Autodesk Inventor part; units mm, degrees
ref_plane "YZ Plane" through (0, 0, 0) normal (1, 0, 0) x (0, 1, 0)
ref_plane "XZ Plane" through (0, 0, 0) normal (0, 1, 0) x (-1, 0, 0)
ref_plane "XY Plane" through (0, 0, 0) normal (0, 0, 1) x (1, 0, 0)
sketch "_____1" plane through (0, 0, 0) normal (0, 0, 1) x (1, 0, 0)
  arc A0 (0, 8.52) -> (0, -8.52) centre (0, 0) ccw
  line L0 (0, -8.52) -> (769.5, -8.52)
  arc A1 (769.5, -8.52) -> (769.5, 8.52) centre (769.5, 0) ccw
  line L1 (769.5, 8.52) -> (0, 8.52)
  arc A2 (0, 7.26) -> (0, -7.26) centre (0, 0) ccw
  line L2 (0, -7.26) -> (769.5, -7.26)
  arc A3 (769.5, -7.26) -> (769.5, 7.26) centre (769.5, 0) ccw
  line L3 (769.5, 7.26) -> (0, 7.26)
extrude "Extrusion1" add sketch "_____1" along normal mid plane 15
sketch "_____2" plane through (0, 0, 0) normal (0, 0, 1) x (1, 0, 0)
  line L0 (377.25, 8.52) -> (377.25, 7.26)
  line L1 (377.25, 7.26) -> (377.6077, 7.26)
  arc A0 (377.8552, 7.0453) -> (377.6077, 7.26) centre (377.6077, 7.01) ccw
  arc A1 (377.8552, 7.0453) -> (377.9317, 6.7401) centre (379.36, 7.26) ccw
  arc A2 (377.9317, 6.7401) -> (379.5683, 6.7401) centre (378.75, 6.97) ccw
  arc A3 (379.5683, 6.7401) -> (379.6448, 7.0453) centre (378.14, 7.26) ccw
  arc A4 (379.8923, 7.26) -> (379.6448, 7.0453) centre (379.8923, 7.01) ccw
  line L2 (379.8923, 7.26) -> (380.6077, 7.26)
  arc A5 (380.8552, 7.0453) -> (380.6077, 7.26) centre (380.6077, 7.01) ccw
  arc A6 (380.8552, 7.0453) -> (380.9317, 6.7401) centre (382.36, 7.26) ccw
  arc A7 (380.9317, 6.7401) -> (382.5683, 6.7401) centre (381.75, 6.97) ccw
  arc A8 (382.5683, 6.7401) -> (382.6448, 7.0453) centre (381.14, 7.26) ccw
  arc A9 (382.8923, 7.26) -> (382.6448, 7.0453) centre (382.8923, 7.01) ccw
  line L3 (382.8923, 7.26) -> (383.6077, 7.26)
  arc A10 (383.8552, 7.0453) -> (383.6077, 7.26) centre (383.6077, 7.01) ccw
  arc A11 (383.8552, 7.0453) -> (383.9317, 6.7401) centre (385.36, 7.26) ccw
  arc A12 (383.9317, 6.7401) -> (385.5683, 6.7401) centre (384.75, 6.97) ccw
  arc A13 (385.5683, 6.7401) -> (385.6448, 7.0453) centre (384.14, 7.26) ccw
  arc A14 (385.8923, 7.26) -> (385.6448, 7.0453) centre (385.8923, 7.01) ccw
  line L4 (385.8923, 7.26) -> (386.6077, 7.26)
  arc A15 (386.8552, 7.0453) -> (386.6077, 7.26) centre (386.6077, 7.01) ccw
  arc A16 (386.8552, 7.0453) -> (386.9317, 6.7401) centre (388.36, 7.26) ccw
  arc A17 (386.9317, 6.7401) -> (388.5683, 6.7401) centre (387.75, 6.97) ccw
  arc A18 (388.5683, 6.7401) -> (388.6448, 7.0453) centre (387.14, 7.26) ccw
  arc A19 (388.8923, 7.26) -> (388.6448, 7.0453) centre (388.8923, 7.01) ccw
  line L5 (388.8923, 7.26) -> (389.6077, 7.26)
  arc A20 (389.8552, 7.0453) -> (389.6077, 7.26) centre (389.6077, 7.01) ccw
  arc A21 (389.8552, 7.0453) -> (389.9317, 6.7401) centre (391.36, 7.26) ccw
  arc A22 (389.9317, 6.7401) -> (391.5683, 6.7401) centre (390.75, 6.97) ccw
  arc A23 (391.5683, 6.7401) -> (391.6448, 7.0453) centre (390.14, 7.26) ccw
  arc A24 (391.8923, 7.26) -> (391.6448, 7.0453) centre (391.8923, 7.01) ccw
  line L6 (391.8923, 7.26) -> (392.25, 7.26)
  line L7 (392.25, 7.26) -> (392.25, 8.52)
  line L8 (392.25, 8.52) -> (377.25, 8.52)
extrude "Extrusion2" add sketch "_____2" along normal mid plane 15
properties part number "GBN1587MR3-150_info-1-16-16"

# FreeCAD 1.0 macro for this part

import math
import FreeCAD as App
import Part
import Sketcher

V = App.Vector
Q = App.Units.Quantity

doc = App.newDocument("Part")
body = doc.addObject("PartDesign::Body", "Body")

sketch1 = body.newObject("Sketcher::SketchObject", "Sketch")
sketch1.AttachmentSupport = (doc.getObject("XY_Plane"), [""])
sketch1.MapMode = "FlatFace"
sketch1.addGeometry([
    Part.LineSegment(V(770, 9, 0), V(0, 9, 0)),
    Part.ArcOfCircle(Part.Circle(V(0, 0, 0), V(0, 0, 1), 9), math.radians(90), math.radians(270)),
    Part.LineSegment(V(0, -9, 0), V(770, -9, 0)),
    Part.ArcOfCircle(Part.Circle(V(770, 0, 0), V(0, 0, 1), 9), math.radians(-90), math.radians(90)),
    Part.ArcOfCircle(Part.Circle(V(0, 0, 0), V(0, 0, 1), 7), math.radians(90), math.radians(270)),
    Part.LineSegment(V(0, 7, 0), V(770, 7, 0)),
    Part.ArcOfCircle(Part.Circle(V(770, 0, 0), V(0, 0, 1), 7), math.radians(-90), math.radians(90)),
    Part.LineSegment(V(770, -7, 0), V(0, -7, 0)),
], False)
sketch1.addConstraint([
    Sketcher.Constraint("Tangent", 0, 2, 1, 1),
    Sketcher.Constraint("Tangent", 1, 2, 2, 1),
    Sketcher.Constraint("Tangent", 2, 2, 3, 1),
    Sketcher.Constraint("Tangent", 3, 2, 0, 1),
    Sketcher.Constraint("Tangent", 4, 1, 5, 1),
    Sketcher.Constraint("Tangent", 5, 2, 6, 2),
    Sketcher.Constraint("Tangent", 6, 1, 7, 1),
    Sketcher.Constraint("Tangent", 7, 2, 4, 2),
    Sketcher.Constraint("Horizontal", 0),
    Sketcher.Constraint("Horizontal", 2),
    Sketcher.Constraint("Horizontal", 5),
    Sketcher.Constraint("Horizontal", 7),
    Sketcher.Constraint("Coincident", 1, 3, -1, 1),
    Sketcher.Constraint("Coincident", 4, 3, -1, 1),
    Sketcher.Constraint("Vertical", 6, 3, 2, 2),
    Sketcher.Constraint("Radius", 1, Q("8.52 mm")),
    Sketcher.Constraint("Radius", 4, Q("7.26 mm")),
    Sketcher.Constraint("DistanceX", 0, 2, 0, 1, Q("769.5 mm")),
])
pad1 = body.newObject("PartDesign::Pad", "Pad")
pad1.Profile = sketch1
pad1.Length = 15
pad1.Midplane = True

sketch2 = body.newObject("Sketcher::SketchObject", "Sketch001")
sketch2.AttachmentSupport = (doc.getObject("XY_Plane"), [""])
sketch2.MapMode = "FlatFace"
sketch2.addGeometry([
    Part.LineSegment(V(392.25, 8.52, 0), V(377.25, 8.52, 0)),
    Part.LineSegment(V(377.25, 8.52, 0), V(377.25, 7.26, 0)),
    Part.LineSegment(V(377.25, 7.26, 0), V(377.61, 7.26, 0)),
    Part.ArcOfCircle(Part.Circle(V(377.61, 7.01, 0), V(0, 0, 1), 0.25), math.radians(8), math.radians(90)),
    Part.ArcOfCircle(Part.Circle(V(379.35, 7.26, 0), V(0, 0, 1), 1.51), math.radians(-171.89), math.radians(-159.97)),
    Part.ArcOfCircle(Part.Circle(V(378.75, 6.97, 0), V(0, 0, 1), 0.85), math.radians(-164), math.radians(-16)),
    Part.ArcOfCircle(Part.Circle(V(378.13, 7.26, 0), V(0, 0, 1), 1.53), math.radians(-19.99), math.radians(-8.15)),
    Part.ArcOfCircle(Part.Circle(V(379.89, 7.01, 0), V(0, 0, 1), 0.25), math.radians(90), math.radians(172)),
    Part.LineSegment(V(379.89, 7.26, 0), V(380.61, 7.26, 0)),
    Part.ArcOfCircle(Part.Circle(V(380.61, 7.01, 0), V(0, 0, 1), 0.25), math.radians(8), math.radians(90)),
    Part.ArcOfCircle(Part.Circle(V(382.35, 7.26, 0), V(0, 0, 1), 1.51), math.radians(-171.89), math.radians(-159.97)),
    Part.ArcOfCircle(Part.Circle(V(381.75, 6.97, 0), V(0, 0, 1), 0.85), math.radians(-164), math.radians(-16)),
    Part.ArcOfCircle(Part.Circle(V(381.13, 7.26, 0), V(0, 0, 1), 1.53), math.radians(-19.99), math.radians(-8.15)),
    Part.ArcOfCircle(Part.Circle(V(382.89, 7.01, 0), V(0, 0, 1), 0.25), math.radians(90), math.radians(172)),
    Part.LineSegment(V(382.89, 7.26, 0), V(383.61, 7.26, 0)),
    Part.ArcOfCircle(Part.Circle(V(383.61, 7.01, 0), V(0, 0, 1), 0.25), math.radians(8), math.radians(90)),
    Part.ArcOfCircle(Part.Circle(V(385.35, 7.26, 0), V(0, 0, 1), 1.51), math.radians(-171.89), math.radians(-159.97)),
    Part.ArcOfCircle(Part.Circle(V(384.75, 6.97, 0), V(0, 0, 1), 0.85), math.radians(-164), math.radians(-16)),
    Part.ArcOfCircle(Part.Circle(V(384.13, 7.26, 0), V(0, 0, 1), 1.53), math.radians(-19.99), math.radians(-8.15)),
    Part.ArcOfCircle(Part.Circle(V(385.89, 7.01, 0), V(0, 0, 1), 0.25), math.radians(90), math.radians(172)),
    Part.LineSegment(V(385.89, 7.26, 0), V(386.61, 7.26, 0)),
    Part.ArcOfCircle(Part.Circle(V(386.61, 7.01, 0), V(0, 0, 1), 0.25), math.radians(8), math.radians(90)),
    Part.ArcOfCircle(Part.Circle(V(388.35, 7.26, 0), V(0, 0, 1), 1.51), math.radians(-171.89), math.radians(-159.97)),
    Part.ArcOfCircle(Part.Circle(V(387.75, 6.97, 0), V(0, 0, 1), 0.85), math.radians(-164), math.radians(-16)),
    Part.ArcOfCircle(Part.Circle(V(387.13, 7.26, 0), V(0, 0, 1), 1.53), math.radians(-19.99), math.radians(-8.15)),
    Part.ArcOfCircle(Part.Circle(V(388.89, 7.01, 0), V(0, 0, 1), 0.25), math.radians(90), math.radians(172)),
    Part.LineSegment(V(388.89, 7.26, 0), V(389.61, 7.26, 0)),
    Part.ArcOfCircle(Part.Circle(V(389.61, 7.01, 0), V(0, 0, 1), 0.25), math.radians(8), math.radians(90)),
    Part.ArcOfCircle(Part.Circle(V(391.35, 7.26, 0), V(0, 0, 1), 1.51), math.radians(-171.89), math.radians(-159.97)),
    Part.ArcOfCircle(Part.Circle(V(390.75, 6.97, 0), V(0, 0, 1), 0.85), math.radians(-164), math.radians(-16)),
    Part.ArcOfCircle(Part.Circle(V(390.13, 7.26, 0), V(0, 0, 1), 1.53), math.radians(-19.99), math.radians(-8.15)),
    Part.ArcOfCircle(Part.Circle(V(391.89, 7.01, 0), V(0, 0, 1), 0.25), math.radians(90), math.radians(172)),
    Part.LineSegment(V(391.89, 7.26, 0), V(392.25, 7.26, 0)),
    Part.LineSegment(V(392.25, 7.26, 0), V(392.25, 8.52, 0)),
], False)
sketch2.addConstraint([
    Sketcher.Constraint("Coincident", 0, 2, 1, 1),
    Sketcher.Constraint("Coincident", 1, 2, 2, 1),
    Sketcher.Constraint("Tangent", 2, 2, 3, 2),
    Sketcher.Constraint("Tangent", 3, 1, 4, 1),
    Sketcher.Constraint("Coincident", 4, 2, 5, 1),
    Sketcher.Constraint("Coincident", 5, 2, 6, 1),
    Sketcher.Constraint("Coincident", 6, 2, 7, 2),
    Sketcher.Constraint("Tangent", 7, 1, 8, 1),
    Sketcher.Constraint("Tangent", 8, 2, 9, 2),
    Sketcher.Constraint("Tangent", 9, 1, 10, 1),
    Sketcher.Constraint("Coincident", 10, 2, 11, 1),
    Sketcher.Constraint("Coincident", 11, 2, 12, 1),
    Sketcher.Constraint("Coincident", 12, 2, 13, 2),
    Sketcher.Constraint("Tangent", 13, 1, 14, 1),
    Sketcher.Constraint("Tangent", 14, 2, 15, 2),
    Sketcher.Constraint("Tangent", 15, 1, 16, 1),
    Sketcher.Constraint("Coincident", 16, 2, 17, 1),
    Sketcher.Constraint("Coincident", 17, 2, 18, 1),
    Sketcher.Constraint("Coincident", 18, 2, 19, 2),
    Sketcher.Constraint("Tangent", 19, 1, 20, 1),
    Sketcher.Constraint("Tangent", 20, 2, 21, 2),
    Sketcher.Constraint("Tangent", 21, 1, 22, 1),
    Sketcher.Constraint("Coincident", 22, 2, 23, 1),
    Sketcher.Constraint("Coincident", 23, 2, 24, 1),
    Sketcher.Constraint("Coincident", 24, 2, 25, 2),
    Sketcher.Constraint("Tangent", 25, 1, 26, 1),
    Sketcher.Constraint("Tangent", 26, 2, 27, 2),
    Sketcher.Constraint("Tangent", 27, 1, 28, 1),
    Sketcher.Constraint("Coincident", 28, 2, 29, 1),
    Sketcher.Constraint("Coincident", 29, 2, 30, 1),
    Sketcher.Constraint("Coincident", 30, 2, 31, 2),
    Sketcher.Constraint("Tangent", 31, 1, 32, 1),
    Sketcher.Constraint("Coincident", 32, 2, 33, 1),
    Sketcher.Constraint("Coincident", 33, 2, 0, 1),
    Sketcher.Constraint("Horizontal", 0),
    Sketcher.Constraint("Vertical", 1),
    Sketcher.Constraint("Horizontal", 2),
    Sketcher.Constraint("Horizontal", 8),
    Sketcher.Constraint("Horizontal", 14),
    Sketcher.Constraint("Horizontal", 20),
    Sketcher.Constraint("Horizontal", 26),
    Sketcher.Constraint("Horizontal", 32),
    Sketcher.Constraint("Vertical", 33),
    Sketcher.Constraint("Equal", 3, 7),
    Sketcher.Constraint("Equal", 7, 9),
    Sketcher.Constraint("Equal", 4, 10),
    Sketcher.Constraint("Equal", 5, 11),
    Sketcher.Constraint("Equal", 6, 12),
    Sketcher.Constraint("Equal", 9, 13),
    Sketcher.Constraint("Equal", 13, 15),
    Sketcher.Constraint("Equal", 10, 16),
    Sketcher.Constraint("Equal", 11, 17),
    Sketcher.Constraint("Equal", 12, 18),
    Sketcher.Constraint("Equal", 15, 19),
    Sketcher.Constraint("Equal", 19, 21),
    Sketcher.Constraint("Equal", 16, 22),
    Sketcher.Constraint("Equal", 17, 23),
    Sketcher.Constraint("Equal", 18, 24),
    Sketcher.Constraint("Equal", 21, 25),
    Sketcher.Constraint("Equal", 25, 27),
    Sketcher.Constraint("Equal", 22, 28),
    Sketcher.Constraint("Equal", 23, 29),
    Sketcher.Constraint("Equal", 24, 30),
    Sketcher.Constraint("Equal", 27, 31),
    Sketcher.Constraint("Horizontal", 3, 3, 7, 3),
    Sketcher.Constraint("Horizontal", 4, 3, 10, 3),
    Sketcher.Constraint("Horizontal", 5, 3, 11, 3),
    Sketcher.Constraint("Horizontal", 6, 3, 12, 3),
    Sketcher.Constraint("Horizontal", 9, 3, 13, 3),
    Sketcher.Constraint("Horizontal", 10, 3, 16, 3),
    Sketcher.Constraint("Horizontal", 11, 3, 17, 3),
    Sketcher.Constraint("Horizontal", 12, 3, 18, 3),
    Sketcher.Constraint("Horizontal", 15, 3, 19, 3),
    Sketcher.Constraint("Horizontal", 16, 3, 22, 3),
    Sketcher.Constraint("Horizontal", 17, 3, 23, 3),
    Sketcher.Constraint("Horizontal", 18, 3, 24, 3),
    Sketcher.Constraint("Horizontal", 21, 3, 25, 3),
    Sketcher.Constraint("Horizontal", 22, 3, 28, 3),
    Sketcher.Constraint("Horizontal", 23, 3, 29, 3),
    Sketcher.Constraint("Horizontal", 24, 3, 30, 3),
    Sketcher.Constraint("Horizontal", 27, 3, 31, 3),
    Sketcher.Constraint("Horizontal", 4, 2, 5, 2),
    Sketcher.Constraint("Horizontal", 3, 1, 6, 2),
    Sketcher.Constraint("Horizontal", 5, 2, 10, 2),
    Sketcher.Constraint("Horizontal", 10, 2, 11, 2),
    Sketcher.Constraint("Horizontal", 9, 1, 12, 2),
    Sketcher.Constraint("Horizontal", 11, 2, 16, 2),
    Sketcher.Constraint("Horizontal", 16, 2, 17, 2),
    Sketcher.Constraint("Horizontal", 15, 1, 18, 2),
    Sketcher.Constraint("Horizontal", 17, 2, 22, 2),
    Sketcher.Constraint("Horizontal", 22, 2, 23, 2),
    Sketcher.Constraint("Horizontal", 21, 1, 24, 2),
    Sketcher.Constraint("Horizontal", 23, 2, 28, 2),
    Sketcher.Constraint("Horizontal", 28, 2, 29, 2),
    Sketcher.Constraint("Horizontal", 27, 1, 30, 2),
    Sketcher.Constraint("Equal", 8, 14),
    Sketcher.Constraint("Equal", 14, 20),
    Sketcher.Constraint("Equal", 20, 26),
    Sketcher.Constraint("Equal", 2, 32),
    Sketcher.Constraint("DistanceX", 0, 2, 0, 1, Q("15 mm")),
    Sketcher.Constraint("Radius", 3, Q("0.25 mm")),
    Sketcher.Constraint("Radius", 5, Q("0.85 mm")),
    Sketcher.Constraint("DistanceX", 3, 3, 9, 3, Q("3 mm")),
    Sketcher.Constraint("DistanceY", 1, 2, 1, 1, Q("1.26 mm")),
    Sketcher.Constraint("Radius", 4, Q("1.5145 mm")),
    Sketcher.Constraint("Radius", 6, Q("1.5256 mm")),
    Sketcher.Constraint("DistanceX", 0, 2, 5, 3, Q("1.5 mm")),
    Sketcher.Constraint("DistanceY", -1, 1, 3, 3, Q("7.01 mm")),
    Sketcher.Constraint("DistanceX", -1, 1, 5, 3, Q("378.75 mm")),
    Sketcher.Constraint("DistanceY", -1, 1, 5, 3, Q("6.97 mm")),
    Sketcher.Constraint("DistanceY", -1, 1, 4, 2, Q("6.74 mm")),
    Sketcher.Constraint("DistanceX", 6, 3, 4, 3, Q("1.22 mm")),
])
pad2 = body.newObject("PartDesign::Pad", "Pad001")
pad2.Profile = sketch2
pad2.Length = 15
pad2.Midplane = True

doc.recompute()
